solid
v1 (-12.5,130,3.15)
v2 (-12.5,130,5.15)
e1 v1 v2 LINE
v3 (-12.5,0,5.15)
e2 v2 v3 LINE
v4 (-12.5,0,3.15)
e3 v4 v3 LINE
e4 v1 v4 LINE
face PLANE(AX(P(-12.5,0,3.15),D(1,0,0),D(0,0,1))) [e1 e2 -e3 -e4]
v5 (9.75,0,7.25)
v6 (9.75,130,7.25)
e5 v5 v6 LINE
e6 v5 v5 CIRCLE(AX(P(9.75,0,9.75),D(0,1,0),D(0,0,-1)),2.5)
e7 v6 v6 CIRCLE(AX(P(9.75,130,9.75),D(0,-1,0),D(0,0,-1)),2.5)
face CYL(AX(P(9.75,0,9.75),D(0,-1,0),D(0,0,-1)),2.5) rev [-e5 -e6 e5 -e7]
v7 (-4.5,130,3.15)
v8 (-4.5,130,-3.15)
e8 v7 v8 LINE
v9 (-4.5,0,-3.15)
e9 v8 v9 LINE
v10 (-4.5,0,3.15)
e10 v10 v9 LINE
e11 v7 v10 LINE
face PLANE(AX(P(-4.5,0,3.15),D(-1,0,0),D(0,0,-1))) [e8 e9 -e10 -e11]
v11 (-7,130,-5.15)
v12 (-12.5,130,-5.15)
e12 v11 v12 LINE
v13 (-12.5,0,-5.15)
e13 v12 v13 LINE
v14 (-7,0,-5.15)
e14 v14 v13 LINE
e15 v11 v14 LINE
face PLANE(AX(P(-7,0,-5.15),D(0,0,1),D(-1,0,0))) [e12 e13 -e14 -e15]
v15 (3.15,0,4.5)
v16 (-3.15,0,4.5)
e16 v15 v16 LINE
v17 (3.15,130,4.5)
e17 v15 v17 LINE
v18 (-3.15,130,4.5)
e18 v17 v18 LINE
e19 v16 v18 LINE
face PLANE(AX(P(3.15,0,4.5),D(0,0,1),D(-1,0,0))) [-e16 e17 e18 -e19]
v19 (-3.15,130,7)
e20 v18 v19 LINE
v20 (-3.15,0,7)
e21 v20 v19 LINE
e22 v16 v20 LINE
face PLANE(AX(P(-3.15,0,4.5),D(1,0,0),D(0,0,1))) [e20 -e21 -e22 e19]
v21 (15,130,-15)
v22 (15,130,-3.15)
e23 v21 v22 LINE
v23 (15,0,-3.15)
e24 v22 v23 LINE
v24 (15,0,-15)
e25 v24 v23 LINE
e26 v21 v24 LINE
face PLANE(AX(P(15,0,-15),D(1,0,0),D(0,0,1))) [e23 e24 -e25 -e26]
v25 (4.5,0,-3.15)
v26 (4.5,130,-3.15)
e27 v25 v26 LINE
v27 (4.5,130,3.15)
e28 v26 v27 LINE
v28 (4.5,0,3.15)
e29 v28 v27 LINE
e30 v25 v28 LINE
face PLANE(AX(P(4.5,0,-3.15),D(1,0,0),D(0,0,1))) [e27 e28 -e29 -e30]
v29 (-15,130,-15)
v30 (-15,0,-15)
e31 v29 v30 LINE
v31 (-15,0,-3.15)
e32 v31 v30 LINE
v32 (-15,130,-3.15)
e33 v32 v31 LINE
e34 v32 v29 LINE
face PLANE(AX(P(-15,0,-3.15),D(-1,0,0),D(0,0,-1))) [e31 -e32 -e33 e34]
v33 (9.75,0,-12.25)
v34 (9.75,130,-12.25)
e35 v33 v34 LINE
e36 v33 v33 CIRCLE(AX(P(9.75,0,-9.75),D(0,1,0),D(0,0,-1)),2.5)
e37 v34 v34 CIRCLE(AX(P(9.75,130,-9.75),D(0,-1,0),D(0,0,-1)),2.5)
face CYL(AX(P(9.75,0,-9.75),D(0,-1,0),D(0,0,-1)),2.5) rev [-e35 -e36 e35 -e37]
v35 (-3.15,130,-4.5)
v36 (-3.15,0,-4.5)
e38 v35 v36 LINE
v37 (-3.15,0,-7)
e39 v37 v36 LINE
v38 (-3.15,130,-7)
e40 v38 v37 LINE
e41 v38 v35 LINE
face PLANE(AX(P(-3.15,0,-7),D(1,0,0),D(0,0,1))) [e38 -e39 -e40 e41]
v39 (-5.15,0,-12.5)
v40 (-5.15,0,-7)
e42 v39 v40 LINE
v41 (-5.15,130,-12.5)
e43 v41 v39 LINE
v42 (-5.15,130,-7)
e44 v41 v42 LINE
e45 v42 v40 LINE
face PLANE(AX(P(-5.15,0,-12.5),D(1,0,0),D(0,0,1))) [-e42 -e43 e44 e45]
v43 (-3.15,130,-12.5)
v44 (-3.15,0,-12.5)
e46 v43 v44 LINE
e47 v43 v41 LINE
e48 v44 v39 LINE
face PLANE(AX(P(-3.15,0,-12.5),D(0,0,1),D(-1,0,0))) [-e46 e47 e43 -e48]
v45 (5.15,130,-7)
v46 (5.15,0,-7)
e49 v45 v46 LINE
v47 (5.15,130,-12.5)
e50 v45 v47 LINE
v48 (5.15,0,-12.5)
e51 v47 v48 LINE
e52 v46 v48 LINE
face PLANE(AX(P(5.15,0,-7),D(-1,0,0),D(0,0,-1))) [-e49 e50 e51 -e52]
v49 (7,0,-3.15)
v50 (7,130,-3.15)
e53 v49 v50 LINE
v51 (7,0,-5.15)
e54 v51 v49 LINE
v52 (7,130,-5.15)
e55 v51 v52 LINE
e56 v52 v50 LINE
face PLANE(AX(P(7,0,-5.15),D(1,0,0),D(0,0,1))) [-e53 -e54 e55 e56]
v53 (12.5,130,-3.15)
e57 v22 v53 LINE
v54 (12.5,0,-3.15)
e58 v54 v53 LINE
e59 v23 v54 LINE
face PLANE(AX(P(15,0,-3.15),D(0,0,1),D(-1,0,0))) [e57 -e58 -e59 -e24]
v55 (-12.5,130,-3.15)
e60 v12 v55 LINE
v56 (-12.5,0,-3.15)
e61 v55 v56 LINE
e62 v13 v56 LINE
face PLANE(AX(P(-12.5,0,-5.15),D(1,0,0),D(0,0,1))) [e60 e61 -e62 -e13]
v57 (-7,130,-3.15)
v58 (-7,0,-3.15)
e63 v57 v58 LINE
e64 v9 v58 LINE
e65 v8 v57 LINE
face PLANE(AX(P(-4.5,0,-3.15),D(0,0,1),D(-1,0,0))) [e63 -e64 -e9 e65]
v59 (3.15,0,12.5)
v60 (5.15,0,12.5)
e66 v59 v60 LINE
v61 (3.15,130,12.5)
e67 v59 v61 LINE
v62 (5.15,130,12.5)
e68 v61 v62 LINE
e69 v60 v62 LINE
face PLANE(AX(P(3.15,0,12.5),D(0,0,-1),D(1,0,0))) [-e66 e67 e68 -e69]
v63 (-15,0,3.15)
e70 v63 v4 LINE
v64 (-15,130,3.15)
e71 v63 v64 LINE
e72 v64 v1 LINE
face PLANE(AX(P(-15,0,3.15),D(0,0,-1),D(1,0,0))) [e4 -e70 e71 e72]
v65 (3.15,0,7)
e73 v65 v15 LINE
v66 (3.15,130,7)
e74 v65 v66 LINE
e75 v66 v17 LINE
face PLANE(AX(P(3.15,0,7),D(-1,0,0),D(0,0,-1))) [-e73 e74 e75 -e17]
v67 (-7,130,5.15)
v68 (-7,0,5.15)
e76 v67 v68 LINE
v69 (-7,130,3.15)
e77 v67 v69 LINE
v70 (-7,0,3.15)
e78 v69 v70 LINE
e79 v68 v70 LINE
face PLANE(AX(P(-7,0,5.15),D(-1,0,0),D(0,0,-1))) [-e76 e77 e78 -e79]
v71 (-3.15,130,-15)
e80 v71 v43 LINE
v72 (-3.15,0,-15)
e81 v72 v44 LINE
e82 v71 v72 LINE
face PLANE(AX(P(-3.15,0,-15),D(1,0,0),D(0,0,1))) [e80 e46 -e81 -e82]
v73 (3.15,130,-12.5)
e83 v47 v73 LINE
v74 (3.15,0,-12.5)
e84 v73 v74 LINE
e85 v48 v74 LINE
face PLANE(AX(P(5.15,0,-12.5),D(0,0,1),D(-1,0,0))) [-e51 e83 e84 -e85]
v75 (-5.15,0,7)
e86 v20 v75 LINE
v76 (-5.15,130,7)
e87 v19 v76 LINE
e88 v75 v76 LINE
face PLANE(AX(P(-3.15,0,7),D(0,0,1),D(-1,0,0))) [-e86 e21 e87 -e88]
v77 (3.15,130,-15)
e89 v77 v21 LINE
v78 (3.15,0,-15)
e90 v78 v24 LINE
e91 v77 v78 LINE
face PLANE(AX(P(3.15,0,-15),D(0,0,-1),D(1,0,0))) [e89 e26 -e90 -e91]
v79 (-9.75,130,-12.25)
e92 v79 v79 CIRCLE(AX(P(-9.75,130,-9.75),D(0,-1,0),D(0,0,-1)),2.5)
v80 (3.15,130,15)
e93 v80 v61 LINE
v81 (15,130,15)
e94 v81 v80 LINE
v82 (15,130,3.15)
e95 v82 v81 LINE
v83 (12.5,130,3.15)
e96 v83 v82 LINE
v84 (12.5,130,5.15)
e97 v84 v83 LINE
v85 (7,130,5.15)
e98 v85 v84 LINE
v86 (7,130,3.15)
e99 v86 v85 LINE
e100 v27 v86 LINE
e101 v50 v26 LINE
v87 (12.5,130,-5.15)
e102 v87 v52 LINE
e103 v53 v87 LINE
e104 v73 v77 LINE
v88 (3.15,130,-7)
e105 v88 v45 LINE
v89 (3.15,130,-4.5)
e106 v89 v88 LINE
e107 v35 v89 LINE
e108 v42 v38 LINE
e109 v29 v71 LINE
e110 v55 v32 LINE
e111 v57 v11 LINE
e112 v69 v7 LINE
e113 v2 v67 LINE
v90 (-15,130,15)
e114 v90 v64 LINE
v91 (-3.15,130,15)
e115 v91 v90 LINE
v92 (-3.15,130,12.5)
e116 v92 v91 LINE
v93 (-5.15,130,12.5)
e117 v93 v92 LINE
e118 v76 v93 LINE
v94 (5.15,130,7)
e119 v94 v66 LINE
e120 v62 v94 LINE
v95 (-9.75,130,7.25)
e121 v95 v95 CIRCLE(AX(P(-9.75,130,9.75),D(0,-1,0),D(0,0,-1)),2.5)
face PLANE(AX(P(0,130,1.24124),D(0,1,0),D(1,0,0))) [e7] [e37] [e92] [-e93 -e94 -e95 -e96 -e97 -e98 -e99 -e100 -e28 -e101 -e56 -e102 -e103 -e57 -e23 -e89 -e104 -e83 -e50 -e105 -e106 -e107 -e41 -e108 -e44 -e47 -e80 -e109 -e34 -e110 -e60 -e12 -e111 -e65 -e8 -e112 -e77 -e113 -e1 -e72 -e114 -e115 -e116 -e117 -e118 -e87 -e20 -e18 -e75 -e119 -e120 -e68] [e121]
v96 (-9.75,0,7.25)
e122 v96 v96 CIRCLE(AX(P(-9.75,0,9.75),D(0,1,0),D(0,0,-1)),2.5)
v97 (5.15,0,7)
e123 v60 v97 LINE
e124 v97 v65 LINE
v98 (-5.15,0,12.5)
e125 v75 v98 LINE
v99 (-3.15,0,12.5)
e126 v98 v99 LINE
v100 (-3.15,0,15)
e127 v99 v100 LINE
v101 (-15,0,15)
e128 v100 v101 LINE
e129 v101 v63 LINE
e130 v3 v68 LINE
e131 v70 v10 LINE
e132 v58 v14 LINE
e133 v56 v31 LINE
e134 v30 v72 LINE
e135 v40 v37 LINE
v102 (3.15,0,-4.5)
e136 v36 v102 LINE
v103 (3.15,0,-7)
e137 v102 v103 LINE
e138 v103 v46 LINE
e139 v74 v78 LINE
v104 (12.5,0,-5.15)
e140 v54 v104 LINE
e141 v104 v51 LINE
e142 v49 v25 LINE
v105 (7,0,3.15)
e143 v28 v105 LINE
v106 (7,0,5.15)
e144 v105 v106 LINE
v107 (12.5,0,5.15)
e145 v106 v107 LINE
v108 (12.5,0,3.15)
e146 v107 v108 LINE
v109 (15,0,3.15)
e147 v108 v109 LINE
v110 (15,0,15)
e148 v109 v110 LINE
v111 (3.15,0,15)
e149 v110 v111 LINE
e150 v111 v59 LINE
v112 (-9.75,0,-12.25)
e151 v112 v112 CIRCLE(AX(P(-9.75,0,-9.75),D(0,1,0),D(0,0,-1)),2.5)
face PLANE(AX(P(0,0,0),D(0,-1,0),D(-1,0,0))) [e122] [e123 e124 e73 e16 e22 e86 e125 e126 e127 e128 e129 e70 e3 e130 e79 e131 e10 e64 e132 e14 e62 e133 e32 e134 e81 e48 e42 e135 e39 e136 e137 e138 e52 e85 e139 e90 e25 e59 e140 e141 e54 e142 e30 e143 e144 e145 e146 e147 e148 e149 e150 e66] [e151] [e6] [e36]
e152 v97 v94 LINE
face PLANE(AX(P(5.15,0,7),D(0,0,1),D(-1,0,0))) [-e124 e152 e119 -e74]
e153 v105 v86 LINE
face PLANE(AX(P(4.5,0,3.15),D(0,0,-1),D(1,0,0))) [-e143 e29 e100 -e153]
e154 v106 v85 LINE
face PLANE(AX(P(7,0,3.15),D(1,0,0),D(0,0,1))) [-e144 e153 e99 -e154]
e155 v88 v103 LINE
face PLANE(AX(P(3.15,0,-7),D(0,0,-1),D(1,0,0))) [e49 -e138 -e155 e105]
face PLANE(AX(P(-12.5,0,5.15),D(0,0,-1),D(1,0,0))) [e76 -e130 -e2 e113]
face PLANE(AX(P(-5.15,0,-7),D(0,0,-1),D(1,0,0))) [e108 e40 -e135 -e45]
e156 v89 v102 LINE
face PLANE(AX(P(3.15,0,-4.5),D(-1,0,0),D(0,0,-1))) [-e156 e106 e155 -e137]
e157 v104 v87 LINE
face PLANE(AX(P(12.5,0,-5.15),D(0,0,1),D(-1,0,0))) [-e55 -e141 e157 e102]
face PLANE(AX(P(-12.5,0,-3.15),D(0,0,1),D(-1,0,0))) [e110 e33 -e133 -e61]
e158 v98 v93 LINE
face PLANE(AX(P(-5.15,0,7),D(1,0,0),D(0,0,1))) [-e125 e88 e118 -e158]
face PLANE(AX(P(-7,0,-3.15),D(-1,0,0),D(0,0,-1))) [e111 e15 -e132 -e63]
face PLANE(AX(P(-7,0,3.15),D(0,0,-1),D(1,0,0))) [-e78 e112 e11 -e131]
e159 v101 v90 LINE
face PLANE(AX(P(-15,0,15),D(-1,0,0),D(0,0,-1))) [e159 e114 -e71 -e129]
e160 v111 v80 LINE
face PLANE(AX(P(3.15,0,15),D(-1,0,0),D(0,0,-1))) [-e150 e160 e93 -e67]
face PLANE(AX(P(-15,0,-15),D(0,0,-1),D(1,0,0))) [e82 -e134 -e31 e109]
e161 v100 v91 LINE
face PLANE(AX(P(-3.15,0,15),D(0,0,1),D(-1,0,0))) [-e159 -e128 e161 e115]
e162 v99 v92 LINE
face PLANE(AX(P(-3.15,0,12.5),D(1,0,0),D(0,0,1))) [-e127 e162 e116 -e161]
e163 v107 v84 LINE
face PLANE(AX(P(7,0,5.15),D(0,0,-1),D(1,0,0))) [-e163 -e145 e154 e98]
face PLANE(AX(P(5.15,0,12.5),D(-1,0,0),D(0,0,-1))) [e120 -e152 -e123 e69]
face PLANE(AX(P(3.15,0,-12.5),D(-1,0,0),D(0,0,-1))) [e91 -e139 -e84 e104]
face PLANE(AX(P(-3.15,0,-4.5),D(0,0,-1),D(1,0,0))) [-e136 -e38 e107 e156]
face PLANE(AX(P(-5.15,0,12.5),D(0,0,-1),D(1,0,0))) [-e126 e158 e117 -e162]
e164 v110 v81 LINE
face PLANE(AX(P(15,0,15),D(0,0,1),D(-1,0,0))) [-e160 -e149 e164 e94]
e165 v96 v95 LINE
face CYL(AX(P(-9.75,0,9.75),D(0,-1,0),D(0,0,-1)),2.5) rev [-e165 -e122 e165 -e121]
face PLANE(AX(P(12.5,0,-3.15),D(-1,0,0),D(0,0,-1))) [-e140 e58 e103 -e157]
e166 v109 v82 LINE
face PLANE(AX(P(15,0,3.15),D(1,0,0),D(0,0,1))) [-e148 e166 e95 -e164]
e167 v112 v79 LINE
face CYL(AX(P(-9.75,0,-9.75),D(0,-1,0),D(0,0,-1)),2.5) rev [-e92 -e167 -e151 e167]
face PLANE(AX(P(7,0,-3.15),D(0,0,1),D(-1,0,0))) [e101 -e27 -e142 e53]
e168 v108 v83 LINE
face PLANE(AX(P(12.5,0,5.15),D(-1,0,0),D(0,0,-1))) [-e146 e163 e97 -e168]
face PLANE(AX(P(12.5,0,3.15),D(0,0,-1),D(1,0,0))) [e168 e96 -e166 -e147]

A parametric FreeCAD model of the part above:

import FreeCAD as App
import Part
import Sketcher
from FreeCAD import Vector

doc = App.newDocument("Part")
body = doc.addObject("PartDesign::Body", "Body")

sketch1 = body.newObject("Sketcher::SketchObject", "Sketch")
sketch1.AttachmentSupport = (doc.getObject("XZ_Plane"), [""])
sketch1.MapMode = "FlatFace"
sketch1.addGeometry([
    Part.LineSegment(Vector(-12.5, 3.15, 0), Vector(-15, 3.15, 0)),
    Part.LineSegment(Vector(-15, 3.15, 0), Vector(-15, 15, 0)),
    Part.LineSegment(Vector(-15, 15, 0), Vector(-3.15, 15, 0)),
    Part.LineSegment(Vector(-3.15, 15, 0), Vector(-3.15, 12.5, 0)),
    Part.LineSegment(Vector(-3.15, 12.5, 0), Vector(-5.15, 12.5, 0)),
    Part.LineSegment(Vector(-5.15, 12.5, 0), Vector(-5.15, 7, 0)),
    Part.LineSegment(Vector(-5.15, 7, 0), Vector(-3.15, 7, 0)),
    Part.LineSegment(Vector(-3.15, 7, 0), Vector(-3.15, 4.5, 0)),
    Part.LineSegment(Vector(-3.15, 4.5, 0), Vector(3.15, 4.5, 0)),
    Part.LineSegment(Vector(3.15, 4.5, 0), Vector(3.15, 7, 0)),
    Part.LineSegment(Vector(3.15, 7, 0), Vector(5.15, 7, 0)),
    Part.LineSegment(Vector(5.15, 7, 0), Vector(5.15, 12.5, 0)),
    Part.LineSegment(Vector(5.15, 12.5, 0), Vector(3.15, 12.5, 0)),
    Part.LineSegment(Vector(3.15, 12.5, 0), Vector(3.15, 15, 0)),
    Part.LineSegment(Vector(3.15, 15, 0), Vector(15, 15, 0)),
    Part.LineSegment(Vector(15, 15, 0), Vector(15, 3.15, 0)),
    Part.LineSegment(Vector(15, 3.15, 0), Vector(12.5, 3.15, 0)),
    Part.LineSegment(Vector(12.5, 3.15, 0), Vector(12.5, 5.15, 0)),
    Part.LineSegment(Vector(12.5, 5.15, 0), Vector(7, 5.15, 0)),
    Part.LineSegment(Vector(7, 5.15, 0), Vector(7, 3.15, 0)),
    Part.LineSegment(Vector(7, 3.15, 0), Vector(4.5, 3.15, 0)),
    Part.LineSegment(Vector(4.5, 3.15, 0), Vector(4.5, -3.15, 0)),
    Part.LineSegment(Vector(4.5, -3.15, 0), Vector(7, -3.15, 0)),
    Part.LineSegment(Vector(7, -3.15, 0), Vector(7, -5.15, 0)),
    Part.LineSegment(Vector(7, -5.15, 0), Vector(12.5, -5.15, 0)),
    Part.LineSegment(Vector(12.5, -5.15, 0), Vector(12.5, -3.15, 0)),
    Part.LineSegment(Vector(12.5, -3.15, 0), Vector(15, -3.15, 0)),
    Part.LineSegment(Vector(15, -3.15, 0), Vector(15, -15, 0)),
    Part.LineSegment(Vector(15, -15, 0), Vector(3.15, -15, 0)),
    Part.LineSegment(Vector(3.15, -15, 0), Vector(3.15, -12.5, 0)),
    Part.LineSegment(Vector(3.15, -12.5, 0), Vector(5.15, -12.5, 0)),
    Part.LineSegment(Vector(5.15, -12.5, 0), Vector(5.15, -7, 0)),
    Part.LineSegment(Vector(5.15, -7, 0), Vector(3.15, -7, 0)),
    Part.LineSegment(Vector(3.15, -7, 0), Vector(3.15, -4.5, 0)),
    Part.LineSegment(Vector(3.15, -4.5, 0), Vector(-3.15, -4.5, 0)),
    Part.LineSegment(Vector(-3.15, -4.5, 0), Vector(-3.15, -7, 0)),
    Part.LineSegment(Vector(-3.15, -7, 0), Vector(-5.15, -7, 0)),
    Part.LineSegment(Vector(-5.15, -7, 0), Vector(-5.15, -12.5, 0)),
    Part.LineSegment(Vector(-5.15, -12.5, 0), Vector(-3.15, -12.5, 0)),
    Part.LineSegment(Vector(-3.15, -12.5, 0), Vector(-3.15, -15, 0)),
    Part.LineSegment(Vector(-3.15, -15, 0), Vector(-15, -15, 0)),
    Part.LineSegment(Vector(-15, -15, 0), Vector(-15, -3.15, 0)),
    Part.LineSegment(Vector(-15, -3.15, 0), Vector(-12.5, -3.15, 0)),
    Part.LineSegment(Vector(-12.5, -3.15, 0), Vector(-12.5, -5.15, 0)),
    Part.LineSegment(Vector(-12.5, -5.15, 0), Vector(-7, -5.15, 0)),
    Part.LineSegment(Vector(-7, -5.15, 0), Vector(-7, -3.15, 0)),
    Part.LineSegment(Vector(-7, -3.15, 0), Vector(-4.5, -3.15, 0)),
    Part.LineSegment(Vector(-4.5, -3.15, 0), Vector(-4.5, 3.15, 0)),
    Part.LineSegment(Vector(-4.5, 3.15, 0), Vector(-7, 3.15, 0)),
    Part.LineSegment(Vector(-7, 3.15, 0), Vector(-7, 5.15, 0)),
    Part.LineSegment(Vector(-7, 5.15, 0), Vector(-12.5, 5.15, 0)),
    Part.LineSegment(Vector(-12.5, 5.15, 0), Vector(-12.5, 3.15, 0)),
    Part.Circle(Vector(9.75, 9.75, 0), Vector(0, 0, 1), 2.5),
    Part.Circle(Vector(-9.75, 9.75, 0), Vector(0, 0, 1), 2.5),
    Part.Circle(Vector(9.75, -9.75, 0), Vector(0, 0, 1), 2.5),
    Part.Circle(Vector(-9.75, -9.75, 0), Vector(0, 0, 1), 2.5),
], False)
sketch1.addConstraint([
    Sketcher.Constraint("Coincident", 0, 2, 1, 1),
    Sketcher.Constraint("Coincident", 1, 2, 2, 1),
    Sketcher.Constraint("Coincident", 2, 2, 3, 1),
    Sketcher.Constraint("Coincident", 3, 2, 4, 1),
    Sketcher.Constraint("Coincident", 4, 2, 5, 1),
    Sketcher.Constraint("Coincident", 5, 2, 6, 1),
    Sketcher.Constraint("Coincident", 6, 2, 7, 1),
    Sketcher.Constraint("Coincident", 7, 2, 8, 1),
    Sketcher.Constraint("Coincident", 8, 2, 9, 1),
    Sketcher.Constraint("Coincident", 9, 2, 10, 1),
    Sketcher.Constraint("Coincident", 10, 2, 11, 1),
    Sketcher.Constraint("Coincident", 11, 2, 12, 1),
    Sketcher.Constraint("Coincident", 12, 2, 13, 1),
    Sketcher.Constraint("Coincident", 13, 2, 14, 1),
    Sketcher.Constraint("Coincident", 14, 2, 15, 1),
    Sketcher.Constraint("Coincident", 15, 2, 16, 1),
    Sketcher.Constraint("Coincident", 16, 2, 17, 1),
    Sketcher.Constraint("Coincident", 17, 2, 18, 1),
    Sketcher.Constraint("Coincident", 18, 2, 19, 1),
    Sketcher.Constraint("Coincident", 19, 2, 20, 1),
    Sketcher.Constraint("Coincident", 20, 2, 21, 1),
    Sketcher.Constraint("Coincident", 21, 2, 22, 1),
    Sketcher.Constraint("Coincident", 22, 2, 23, 1),
    Sketcher.Constraint("Coincident", 23, 2, 24, 1),
    Sketcher.Constraint("Coincident", 24, 2, 25, 1),
    Sketcher.Constraint("Coincident", 25, 2, 26, 1),
    Sketcher.Constraint("Coincident", 26, 2, 27, 1),
    Sketcher.Constraint("Coincident", 27, 2, 28, 1),
    Sketcher.Constraint("Coincident", 28, 2, 29, 1),
    Sketcher.Constraint("Coincident", 29, 2, 30, 1),
    Sketcher.Constraint("Coincident", 30, 2, 31, 1),
    Sketcher.Constraint("Coincident", 31, 2, 32, 1),
    Sketcher.Constraint("Coincident", 32, 2, 33, 1),
    Sketcher.Constraint("Coincident", 33, 2, 34, 1),
    Sketcher.Constraint("Coincident", 34, 2, 35, 1),
    Sketcher.Constraint("Coincident", 35, 2, 36, 1),
    Sketcher.Constraint("Coincident", 36, 2, 37, 1),
    Sketcher.Constraint("Coincident", 37, 2, 38, 1),
    Sketcher.Constraint("Coincident", 38, 2, 39, 1),
    Sketcher.Constraint("Coincident", 39, 2, 40, 1),
    Sketcher.Constraint("Coincident", 40, 2, 41, 1),
    Sketcher.Constraint("Coincident", 41, 2, 42, 1),
    Sketcher.Constraint("Coincident", 42, 2, 43, 1),
    Sketcher.Constraint("Coincident", 43, 2, 44, 1),
    Sketcher.Constraint("Coincident", 44, 2, 45, 1),
    Sketcher.Constraint("Coincident", 45, 2, 46, 1),
    Sketcher.Constraint("Coincident", 46, 2, 47, 1),
    Sketcher.Constraint("Coincident", 47, 2, 48, 1),
    Sketcher.Constraint("Coincident", 48, 2, 49, 1),
    Sketcher.Constraint("Coincident", 49, 2, 50, 1),
    Sketcher.Constraint("Coincident", 50, 2, 51, 1),
    Sketcher.Constraint("Coincident", 51, 2, 0, 1),
    Sketcher.Constraint("Horizontal", 0),
    Sketcher.Constraint("Vertical", 1),
    Sketcher.Constraint("Horizontal", 2),
    Sketcher.Constraint("Vertical", 3),
    Sketcher.Constraint("Horizontal", 4),
    Sketcher.Constraint("Vertical", 5),
    Sketcher.Constraint("Horizontal", 6),
    Sketcher.Constraint("Vertical", 7),
    Sketcher.Constraint("Horizontal", 8),
    Sketcher.Constraint("Vertical", 9),
    Sketcher.Constraint("Horizontal", 10),
    Sketcher.Constraint("Vertical", 11),
    Sketcher.Constraint("Horizontal", 12),
    Sketcher.Constraint("Vertical", 13),
    Sketcher.Constraint("Horizontal", 14),
    Sketcher.Constraint("Vertical", 15),
    Sketcher.Constraint("Horizontal", 16),
    Sketcher.Constraint("Vertical", 17),
    Sketcher.Constraint("Horizontal", 18),
    Sketcher.Constraint("Vertical", 19),
    Sketcher.Constraint("Horizontal", 20),
    Sketcher.Constraint("Vertical", 21),
    Sketcher.Constraint("Horizontal", 22),
    Sketcher.Constraint("Vertical", 23),
    Sketcher.Constraint("Horizontal", 24),
    Sketcher.Constraint("Vertical", 25),
    Sketcher.Constraint("Horizontal", 26),
    Sketcher.Constraint("Vertical", 27),
    Sketcher.Constraint("Horizontal", 28),
    Sketcher.Constraint("Vertical", 29),
    Sketcher.Constraint("Horizontal", 30),
    Sketcher.Constraint("Vertical", 31),
    Sketcher.Constraint("Horizontal", 32),
    Sketcher.Constraint("Vertical", 33),
    Sketcher.Constraint("Horizontal", 34),
    Sketcher.Constraint("Vertical", 35),
    Sketcher.Constraint("Horizontal", 36),
    Sketcher.Constraint("Vertical", 37),
    Sketcher.Constraint("Horizontal", 38),
    Sketcher.Constraint("Vertical", 39),
    Sketcher.Constraint("Horizontal", 40),
    Sketcher.Constraint("Vertical", 41),
    Sketcher.Constraint("Horizontal", 42),
    Sketcher.Constraint("Vertical", 43),
    Sketcher.Constraint("Horizontal", 44),
    Sketcher.Constraint("Vertical", 45),
    Sketcher.Constraint("Horizontal", 46),
    Sketcher.Constraint("Vertical", 47),
    Sketcher.Constraint("Horizontal", 48),
    Sketcher.Constraint("Vertical", 49),
    Sketcher.Constraint("Horizontal", 50),
    Sketcher.Constraint("Vertical", 51),
    Sketcher.Constraint("Equal", 52, 53),
    Sketcher.Constraint("Equal", 53, 54),
    Sketcher.Constraint("Equal", 54, 55),
    Sketcher.Constraint("Symmetric", 53, 3, 54, 3, -1, 1),
    Sketcher.Constraint("Symmetric", 52, 3, 55, 3, -1, 1),
    Sketcher.Constraint("Symmetric", 0, 2, 26, 2, -1, 1),
    Sketcher.Constraint("Symmetric", 2, 2, 28, 2, -1, 1),
    Sketcher.Constraint("Symmetric", 4, 2, 30, 2, -1, 1),
    Sketcher.Constraint("Symmetric", 6, 2, 32, 2, -1, 1),
    Sketcher.Constraint("Symmetric", 8, 2, 34, 2, -1, 1),
    Sketcher.Constraint("Symmetric", 10, 2, 36, 2, -1, 1),
    Sketcher.Constraint("Symmetric", 12, 2, 38, 2, -1, 1),
    Sketcher.Constraint("Symmetric", 14, 2, 40, 2, -1, 1),
    Sketcher.Constraint("Symmetric", 16, 2, 42, 2, -1, 1),
    Sketcher.Constraint("Symmetric", 18, 2, 44, 2, -1, 1),
    Sketcher.Constraint("Symmetric", 20, 2, 46, 2, -1, 1),
    Sketcher.Constraint("Symmetric", 22, 2, 48, 2, -1, 1),
    Sketcher.Constraint("Symmetric", 24, 2, 50, 2, -1, 1),
    Sketcher.Constraint("Symmetric", 52, 3, 53, 3, -2),
    Sketcher.Constraint("Symmetric", 6, 2, 9, 2, -2),
    Sketcher.Constraint("Symmetric", 4, 2, 11, 2, -2),
    Sketcher.Constraint("Symmetric", 2, 2, 13, 2, -2),
    Sketcher.Constraint("Symmetric", 0, 2, 15, 2, -2),
    Sketcher.Constraint("Symmetric", 24, 2, 43, 2, -2),
    Sketcher.Constraint("Symmetric", 22, 2, 45, 2, -2),
    Sketcher.Constraint("Horizontal", 16, 2, 19, 2),
    Sketcher.Constraint("Vertical", 3, 2, 6, 2),
    Sketcher.Constraint("Equal", 16, 20),
    Sketcher.Constraint("Equal", 40, 1),
    Sketcher.Constraint("Equal", 48, 3),
    Sketcher.Constraint("Equal", 50, 5),
    Sketcher.Constraint("Equal", 3, 7),
    Sketcher.Constraint("Equal", 38, 17),
    Sketcher.Constraint("Equal", 34, 21),
    Sketcher.Constraint("Diameter", 52, 5.0),
    Sketcher.Constraint("DistanceX", 4, 2, 4, 1, 2.0),
    Sketcher.Constraint("DistanceX", 0, 2, 0, 1, 2.5),
    Sketcher.Constraint("DistanceX", 8, 1, 8, 2, 6.3),
    Sketcher.Constraint("DistanceX", 18, 2, 18, 1, 5.5),
    Sketcher.Constraint("DistanceX", 0, 2, -1, 1, 15.0),
    Sketcher.Constraint("DistanceX", 53, 3, 52, 3, 19.5),
    Sketcher.Constraint("DistanceY", 54, 3, 52, 3, 19.5),
])
pad1 = body.newObject("PartDesign::Pad", "Pad")
pad1.Profile = sketch1
pad1.Length = 360
pad1.Midplane = True

sketch2 = body.newObject("Sketcher::SketchObject", "Sketch001")
sketch2.AttachmentSupport = (doc.getObject("XZ_Plane"), [""])
sketch2.MapMode = "FlatFace"
sketch2.AttachmentOffset = App.Placement(Vector(0, 0, -180), App.Rotation())
sketch2.addGeometry(Part.Circle(Vector(0, 0, 0), Vector(0, 0, 1), 82.250529), False)
sketch2.addConstraint([
    Sketcher.Constraint("Coincident", 0, 3, -1, 1),
    Sketcher.Constraint("Diameter", 0, 164.501058),
])
pocket1 = body.newObject("PartDesign::Pocket", "Pocket")
pocket1.Profile = sketch2
pocket1.Length = 10
pocket1.Reversed = True

sketch3 = body.newObject("Sketcher::SketchObject", "Sketch002")
sketch3.AttachmentSupport = (doc.getObject("XZ_Plane"), [""])
sketch3.MapMode = "FlatFace"
sketch3.AttachmentOffset = App.Placement(Vector(0, 0, 180), App.Rotation())
sketch3.addGeometry(Part.Circle(Vector(0.216432, -1.772037, 0), Vector(0, 0, 1), 47.359828), False)
sketch3.addConstraint([
    Sketcher.Constraint("Diameter", 0, 94.719656),
    Sketcher.Constraint("DistanceX", -1, 1, 0, 3, 0.216432),
    Sketcher.Constraint("DistanceY", 0, 3, -1, 1, 1.772037),
])
pocket2 = body.newObject("PartDesign::Pocket", "Pocket001")
pocket2.Profile = sketch3
pocket2.Length = 200

sketch4 = body.newObject("Sketcher::SketchObject", "Sketch003")
sketch4.AttachmentSupport = (doc.getObject("XZ_Plane"), [""])
sketch4.MapMode = "FlatFace"
sketch4.AttachmentOffset = App.Placement(Vector(0, 0, -20), App.Rotation())
sketch4.addGeometry(Part.Circle(Vector(-1.287426, -1.543635, 0), Vector(0, 0, 1), 50.055939), False)
sketch4.addConstraint([
    Sketcher.Constraint("Diameter", 0, 100.111878),
    Sketcher.Constraint("DistanceX", 0, 3, -1, 1, 1.287426),
    Sketcher.Constraint("DistanceY", 0, 3, -1, 1, 1.543635),
])
pocket3 = body.newObject("PartDesign::Pocket", "Pocket002")
pocket3.Profile = sketch4
pocket3.Length = 30

sketch5 = body.newObject("Sketcher::SketchObject", "Sketch004")
sketch5.AttachmentSupport = (doc.getObject("XZ_Plane"), [""])
sketch5.MapMode = "FlatFace"
sketch5.AttachmentOffset = App.Placement(Vector(0, 0, -50), App.Rotation())
sketch5.addGeometry(Part.Circle(Vector(-0.97937, 0.86415, 0), Vector(0, 0, 1), 35.776747), False)
sketch5.addConstraint([
    Sketcher.Constraint("Diameter", 0, 71.553493),
    Sketcher.Constraint("DistanceX", 0, 3, -1, 1, 0.97937),
    Sketcher.Constraint("DistanceY", -1, 1, 0, 3, 0.86415),
])
pocket4 = body.newObject("PartDesign::Pocket", "Pocket003")
pocket4.Profile = sketch5
pocket4.Length = 40

sketch6 = body.newObject("Sketcher::SketchObject", "Sketch005")
sketch6.AttachmentSupport = (doc.getObject("XZ_Plane"), [""])
sketch6.MapMode = "FlatFace"
sketch6.addGeometry([
    Part.LineSegment(Vector(-12.5, 3.15, 0), Vector(-15, 3.15, 0)),
    Part.LineSegment(Vector(-15, 3.15, 0), Vector(-15, 15, 0)),
    Part.LineSegment(Vector(-15, 15, 0), Vector(-3.15, 15, 0)),
    Part.LineSegment(Vector(-3.15, 15, 0), Vector(-3.15, 12.5, 0)),
    Part.LineSegment(Vector(-3.15, 12.5, 0), Vector(-5.15, 12.5, 0)),
    Part.LineSegment(Vector(-5.15, 12.5, 0), Vector(-5.15, 7, 0)),
    Part.LineSegment(Vector(-5.15, 7, 0), Vector(-3.15, 7, 0)),
    Part.LineSegment(Vector(-3.15, 7, 0), Vector(-3.15, 4.5, 0)),
    Part.LineSegment(Vector(-3.15, 4.5, 0), Vector(3.15, 4.5, 0)),
    Part.LineSegment(Vector(3.15, 4.5, 0), Vector(3.15, 7, 0)),
    Part.LineSegment(Vector(3.15, 7, 0), Vector(5.15, 7, 0)),
    Part.LineSegment(Vector(5.15, 7, 0), Vector(5.15, 12.5, 0)),
    Part.LineSegment(Vector(5.15, 12.5, 0), Vector(3.15, 12.5, 0)),
    Part.LineSegment(Vector(3.15, 12.5, 0), Vector(3.15, 15, 0)),
    Part.LineSegment(Vector(3.15, 15, 0), Vector(15, 15, 0)),
    Part.LineSegment(Vector(15, 15, 0), Vector(15, 3.15, 0)),
    Part.LineSegment(Vector(15, 3.15, 0), Vector(12.5, 3.15, 0)),
    Part.LineSegment(Vector(12.5, 3.15, 0), Vector(12.5, 5.15, 0)),
    Part.LineSegment(Vector(12.5, 5.15, 0), Vector(7, 5.15, 0)),
    Part.LineSegment(Vector(7, 5.15, 0), Vector(7, 3.15, 0)),
    Part.LineSegment(Vector(7, 3.15, 0), Vector(4.5, 3.15, 0)),
    Part.LineSegment(Vector(4.5, 3.15, 0), Vector(4.5, -3.15, 0)),
    Part.LineSegment(Vector(4.5, -3.15, 0), Vector(7, -3.15, 0)),
    Part.LineSegment(Vector(7, -3.15, 0), Vector(7, -5.15, 0)),
    Part.LineSegment(Vector(7, -5.15, 0), Vector(12.5, -5.15, 0)),
    Part.LineSegment(Vector(12.5, -5.15, 0), Vector(12.5, -3.15, 0)),
    Part.LineSegment(Vector(12.5, -3.15, 0), Vector(15, -3.15, 0)),
    Part.LineSegment(Vector(15, -3.15, 0), Vector(15, -15, 0)),
    Part.LineSegment(Vector(15, -15, 0), Vector(3.15, -15, 0)),
    Part.LineSegment(Vector(3.15, -15, 0), Vector(3.15, -12.5, 0)),
    Part.LineSegment(Vector(3.15, -12.5, 0), Vector(5.15, -12.5, 0)),
    Part.LineSegment(Vector(5.15, -12.5, 0), Vector(5.15, -7, 0)),
    Part.LineSegment(Vector(5.15, -7, 0), Vector(3.15, -7, 0)),
    Part.LineSegment(Vector(3.15, -7, 0), Vector(3.15, -4.5, 0)),
    Part.LineSegment(Vector(3.15, -4.5, 0), Vector(-3.15, -4.5, 0)),
    Part.LineSegment(Vector(-3.15, -4.5, 0), Vector(-3.15, -7, 0)),
    Part.LineSegment(Vector(-3.15, -7, 0), Vector(-5.15, -7, 0)),
    Part.LineSegment(Vector(-5.15, -7, 0), Vector(-5.15, -12.5, 0)),
    Part.LineSegment(Vector(-5.15, -12.5, 0), Vector(-3.15, -12.5, 0)),
    Part.LineSegment(Vector(-3.15, -12.5, 0), Vector(-3.15, -15, 0)),
    Part.LineSegment(Vector(-3.15, -15, 0), Vector(-15, -15, 0)),
    Part.LineSegment(Vector(-15, -15, 0), Vector(-15, -3.15, 0)),
    Part.LineSegment(Vector(-15, -3.15, 0), Vector(-12.5, -3.15, 0)),
    Part.LineSegment(Vector(-12.5, -3.15, 0), Vector(-12.5, -5.15, 0)),
    Part.LineSegment(Vector(-12.5, -5.15, 0), Vector(-7, -5.15, 0)),
    Part.LineSegment(Vector(-7, -5.15, 0), Vector(-7, -3.15, 0)),
    Part.LineSegment(Vector(-7, -3.15, 0), Vector(-4.5, -3.15, 0)),
    Part.LineSegment(Vector(-4.5, -3.15, 0), Vector(-4.5, 3.15, 0)),
    Part.LineSegment(Vector(-4.5, 3.15, 0), Vector(-7, 3.15, 0)),
    Part.LineSegment(Vector(-7, 3.15, 0), Vector(-7, 5.15, 0)),
    Part.LineSegment(Vector(-7, 5.15, 0), Vector(-12.5, 5.15, 0)),
    Part.LineSegment(Vector(-12.5, 5.15, 0), Vector(-12.5, 3.15, 0)),
    Part.Circle(Vector(9.75, 9.75, 0), Vector(0, 0, 1), 2.5),
    Part.Circle(Vector(-9.75, 9.75, 0), Vector(0, 0, 1), 2.5),
    Part.Circle(Vector(9.75, -9.75, 0), Vector(0, 0, 1), 2.5),
    Part.Circle(Vector(-9.75, -9.75, 0), Vector(0, 0, 1), 2.5),
], False)
sketch6.addConstraint([
    Sketcher.Constraint("Coincident", 0, 2, 1, 1),
    Sketcher.Constraint("Coincident", 1, 2, 2, 1),
    Sketcher.Constraint("Coincident", 2, 2, 3, 1),
    Sketcher.Constraint("Coincident", 3, 2, 4, 1),
    Sketcher.Constraint("Coincident", 4, 2, 5, 1),
    Sketcher.Constraint("Coincident", 5, 2, 6, 1),
    Sketcher.Constraint("Coincident", 6, 2, 7, 1),
    Sketcher.Constraint("Coincident", 7, 2, 8, 1),
    Sketcher.Constraint("Coincident", 8, 2, 9, 1),
    Sketcher.Constraint("Coincident", 9, 2, 10, 1),
    Sketcher.Constraint("Coincident", 10, 2, 11, 1),
    Sketcher.Constraint("Coincident", 11, 2, 12, 1),
    Sketcher.Constraint("Coincident", 12, 2, 13, 1),
    Sketcher.Constraint("Coincident", 13, 2, 14, 1),
    Sketcher.Constraint("Coincident", 14, 2, 15, 1),
    Sketcher.Constraint("Coincident", 15, 2, 16, 1),
    Sketcher.Constraint("Coincident", 16, 2, 17, 1),
    Sketcher.Constraint("Coincident", 17, 2, 18, 1),
    Sketcher.Constraint("Coincident", 18, 2, 19, 1),
    Sketcher.Constraint("Coincident", 19, 2, 20, 1),
    Sketcher.Constraint("Coincident", 20, 2, 21, 1),
    Sketcher.Constraint("Coincident", 21, 2, 22, 1),
    Sketcher.Constraint("Coincident", 22, 2, 23, 1),
    Sketcher.Constraint("Coincident", 23, 2, 24, 1),
    Sketcher.Constraint("Coincident", 24, 2, 25, 1),
    Sketcher.Constraint("Coincident", 25, 2, 26, 1),
    Sketcher.Constraint("Coincident", 26, 2, 27, 1),
    Sketcher.Constraint("Coincident", 27, 2, 28, 1),
    Sketcher.Constraint("Coincident", 28, 2, 29, 1),
    Sketcher.Constraint("Coincident", 29, 2, 30, 1),
    Sketcher.Constraint("Coincident", 30, 2, 31, 1),
    Sketcher.Constraint("Coincident", 31, 2, 32, 1),
    Sketcher.Constraint("Coincident", 32, 2, 33, 1),
    Sketcher.Constraint("Coincident", 33, 2, 34, 1),
    Sketcher.Constraint("Coincident", 34, 2, 35, 1),
    Sketcher.Constraint("Coincident", 35, 2, 36, 1),
    Sketcher.Constraint("Coincident", 36, 2, 37, 1),
    Sketcher.Constraint("Coincident", 37, 2, 38, 1),
    Sketcher.Constraint("Coincident", 38, 2, 39, 1),
    Sketcher.Constraint("Coincident", 39, 2, 40, 1),
    Sketcher.Constraint("Coincident", 40, 2, 41, 1),
    Sketcher.Constraint("Coincident", 41, 2, 42, 1),
    Sketcher.Constraint("Coincident", 42, 2, 43, 1),
    Sketcher.Constraint("Coincident", 43, 2, 44, 1),
    Sketcher.Constraint("Coincident", 44, 2, 45, 1),
    Sketcher.Constraint("Coincident", 45, 2, 46, 1),
    Sketcher.Constraint("Coincident", 46, 2, 47, 1),
    Sketcher.Constraint("Coincident", 47, 2, 48, 1),
    Sketcher.Constraint("Coincident", 48, 2, 49, 1),
    Sketcher.Constraint("Coincident", 49, 2, 50, 1),
    Sketcher.Constraint("Coincident", 50, 2, 51, 1),
    Sketcher.Constraint("Coincident", 51, 2, 0, 1),
    Sketcher.Constraint("Horizontal", 0),
    Sketcher.Constraint("Vertical", 1),
    Sketcher.Constraint("Horizontal", 2),
    Sketcher.Constraint("Vertical", 3),
    Sketcher.Constraint("Horizontal", 4),
    Sketcher.Constraint("Vertical", 5),
    Sketcher.Constraint("Horizontal", 6),
    Sketcher.Constraint("Vertical", 7),
    Sketcher.Constraint("Horizontal", 8),
    Sketcher.Constraint("Vertical", 9),
    Sketcher.Constraint("Horizontal", 10),
    Sketcher.Constraint("Vertical", 11),
    Sketcher.Constraint("Horizontal", 12),
    Sketcher.Constraint("Vertical", 13),
    Sketcher.Constraint("Horizontal", 14),
    Sketcher.Constraint("Vertical", 15),
    Sketcher.Constraint("Horizontal", 16),
    Sketcher.Constraint("Vertical", 17),
    Sketcher.Constraint("Horizontal", 18),
    Sketcher.Constraint("Vertical", 19),
    Sketcher.Constraint("Horizontal", 20),
    Sketcher.Constraint("Vertical", 21),
    Sketcher.Constraint("Horizontal", 22),
    Sketcher.Constraint("Vertical", 23),
    Sketcher.Constraint("Horizontal", 24),
    Sketcher.Constraint("Vertical", 25),
    Sketcher.Constraint("Horizontal", 26),
    Sketcher.Constraint("Vertical", 27),
    Sketcher.Constraint("Horizontal", 28),
    Sketcher.Constraint("Vertical", 29),
    Sketcher.Constraint("Horizontal", 30),
    Sketcher.Constraint("Vertical", 31),
    Sketcher.Constraint("Horizontal", 32),
    Sketcher.Constraint("Vertical", 33),
    Sketcher.Constraint("Horizontal", 34),
    Sketcher.Constraint("Vertical", 35),
    Sketcher.Constraint("Horizontal", 36),
    Sketcher.Constraint("Vertical", 37),
    Sketcher.Constraint("Horizontal", 38),
    Sketcher.Constraint("Vertical", 39),
    Sketcher.Constraint("Horizontal", 40),
    Sketcher.Constraint("Vertical", 41),
    Sketcher.Constraint("Horizontal", 42),
    Sketcher.Constraint("Vertical", 43),
    Sketcher.Constraint("Horizontal", 44),
    Sketcher.Constraint("Vertical", 45),
    Sketcher.Constraint("Horizontal", 46),
    Sketcher.Constraint("Vertical", 47),
    Sketcher.Constraint("Horizontal", 48),
    Sketcher.Constraint("Vertical", 49),
    Sketcher.Constraint("Horizontal", 50),
    Sketcher.Constraint("Vertical", 51),
    Sketcher.Constraint("Equal", 52, 53),
    Sketcher.Constraint("Equal", 53, 54),
    Sketcher.Constraint("Equal", 54, 55),
    Sketcher.Constraint("Symmetric", 53, 3, 54, 3, -1, 1),
    Sketcher.Constraint("Symmetric", 52, 3, 55, 3, -1, 1),
    Sketcher.Constraint("Symmetric", 0, 2, 26, 2, -1, 1),
    Sketcher.Constraint("Symmetric", 2, 2, 28, 2, -1, 1),
    Sketcher.Constraint("Symmetric", 4, 2, 30, 2, -1, 1),
    Sketcher.Constraint("Symmetric", 6, 2, 32, 2, -1, 1),
    Sketcher.Constraint("Symmetric", 8, 2, 34, 2, -1, 1),
    Sketcher.Constraint("Symmetric", 10, 2, 36, 2, -1, 1),
    Sketcher.Constraint("Symmetric", 12, 2, 38, 2, -1, 1),
    Sketcher.Constraint("Symmetric", 14, 2, 40, 2, -1, 1),
    Sketcher.Constraint("Symmetric", 16, 2, 42, 2, -1, 1),
    Sketcher.Constraint("Symmetric", 18, 2, 44, 2, -1, 1),
    Sketcher.Constraint("Symmetric", 20, 2, 46, 2, -1, 1),
    Sketcher.Constraint("Symmetric", 22, 2, 48, 2, -1, 1),
    Sketcher.Constraint("Symmetric", 24, 2, 50, 2, -1, 1),
    Sketcher.Constraint("Symmetric", 52, 3, 53, 3, -2),
    Sketcher.Constraint("Symmetric", 6, 2, 9, 2, -2),
    Sketcher.Constraint("Symmetric", 4, 2, 11, 2, -2),
    Sketcher.Constraint("Symmetric", 2, 2, 13, 2, -2),
    Sketcher.Constraint("Symmetric", 0, 2, 15, 2, -2),
    Sketcher.Constraint("Symmetric", 24, 2, 43, 2, -2),
    Sketcher.Constraint("Symmetric", 22, 2, 45, 2, -2),
    Sketcher.Constraint("Horizontal", 16, 2, 19, 2),
    Sketcher.Constraint("Vertical", 3, 2, 6, 2),
    Sketcher.Constraint("Equal", 16, 20),
    Sketcher.Constraint("Equal", 40, 1),
    Sketcher.Constraint("Equal", 48, 3),
    Sketcher.Constraint("Equal", 50, 5),
    Sketcher.Constraint("Equal", 3, 7),
    Sketcher.Constraint("Equal", 38, 17),
    Sketcher.Constraint("Equal", 34, 21),
    Sketcher.Constraint("Diameter", 52, 5.0),
    Sketcher.Constraint("DistanceX", 4, 2, 4, 1, 2.0),
    Sketcher.Constraint("DistanceX", 0, 2, 0, 1, 2.5),
    Sketcher.Constraint("DistanceX", 8, 1, 8, 2, 6.3),
    Sketcher.Constraint("DistanceX", 18, 2, 18, 1, 5.5),
    Sketcher.Constraint("DistanceX", 0, 2, -1, 1, 15.0),
    Sketcher.Constraint("DistanceX", 53, 3, 52, 3, 19.5),
    Sketcher.Constraint("DistanceY", 54, 3, 52, 3, 19.5),
])
pad2 = body.newObject("PartDesign::Pad", "Pad001")
pad2.Profile = sketch6
pad2.Length = 200
pad2.Reversed = True

sketch7 = body.newObject("Sketcher::SketchObject", "Sketch006")
sketch7.AttachmentSupport = (doc.getObject("XZ_Plane"), [""])
sketch7.MapMode = "FlatFace"
sketch7.AttachmentOffset = App.Placement(Vector(0, 0, -200), App.Rotation())
sketch7.addGeometry(Part.Circle(Vector(-0.666783, -0.500087, 0), Vector(0, 0, 1), 45.508426), False)
sketch7.addConstraint([
    Sketcher.Constraint("Diameter", 0, 91.016852),
    Sketcher.Constraint("DistanceX", 0, 3, -1, 1, 0.666783),
    Sketcher.Constraint("DistanceY", 0, 3, -1, 1, 0.500087),
])
pocket5 = body.newObject("PartDesign::Pocket", "Pocket004")
pocket5.Profile = sketch7
pocket5.Length = 50
pocket5.Reversed = True

sketch8 = body.newObject("Sketcher::SketchObject", "Sketch007")
sketch8.AttachmentSupport = (doc.getObject("XZ_Plane"), [""])
sketch8.MapMode = "FlatFace"
sketch8.AttachmentOffset = App.Placement(Vector(0, 0, -150), App.Rotation())
sketch8.addGeometry(Part.Circle(Vector(0, 1.24124, 0), Vector(0, 0, 1), 85.251485), False)
sketch8.addConstraint([
    Sketcher.Constraint("PointOnObject", 0, 3, -2),
    Sketcher.Constraint("Diameter", 0, 170.502971),
    Sketcher.Constraint("DistanceY", -1, 1, 0, 3, 1.24124),
])
pocket6 = body.newObject("PartDesign::Pocket", "Pocket005")
pocket6.Profile = sketch8
pocket6.Length = 20
pocket6.Reversed = True

doc.recompute()
